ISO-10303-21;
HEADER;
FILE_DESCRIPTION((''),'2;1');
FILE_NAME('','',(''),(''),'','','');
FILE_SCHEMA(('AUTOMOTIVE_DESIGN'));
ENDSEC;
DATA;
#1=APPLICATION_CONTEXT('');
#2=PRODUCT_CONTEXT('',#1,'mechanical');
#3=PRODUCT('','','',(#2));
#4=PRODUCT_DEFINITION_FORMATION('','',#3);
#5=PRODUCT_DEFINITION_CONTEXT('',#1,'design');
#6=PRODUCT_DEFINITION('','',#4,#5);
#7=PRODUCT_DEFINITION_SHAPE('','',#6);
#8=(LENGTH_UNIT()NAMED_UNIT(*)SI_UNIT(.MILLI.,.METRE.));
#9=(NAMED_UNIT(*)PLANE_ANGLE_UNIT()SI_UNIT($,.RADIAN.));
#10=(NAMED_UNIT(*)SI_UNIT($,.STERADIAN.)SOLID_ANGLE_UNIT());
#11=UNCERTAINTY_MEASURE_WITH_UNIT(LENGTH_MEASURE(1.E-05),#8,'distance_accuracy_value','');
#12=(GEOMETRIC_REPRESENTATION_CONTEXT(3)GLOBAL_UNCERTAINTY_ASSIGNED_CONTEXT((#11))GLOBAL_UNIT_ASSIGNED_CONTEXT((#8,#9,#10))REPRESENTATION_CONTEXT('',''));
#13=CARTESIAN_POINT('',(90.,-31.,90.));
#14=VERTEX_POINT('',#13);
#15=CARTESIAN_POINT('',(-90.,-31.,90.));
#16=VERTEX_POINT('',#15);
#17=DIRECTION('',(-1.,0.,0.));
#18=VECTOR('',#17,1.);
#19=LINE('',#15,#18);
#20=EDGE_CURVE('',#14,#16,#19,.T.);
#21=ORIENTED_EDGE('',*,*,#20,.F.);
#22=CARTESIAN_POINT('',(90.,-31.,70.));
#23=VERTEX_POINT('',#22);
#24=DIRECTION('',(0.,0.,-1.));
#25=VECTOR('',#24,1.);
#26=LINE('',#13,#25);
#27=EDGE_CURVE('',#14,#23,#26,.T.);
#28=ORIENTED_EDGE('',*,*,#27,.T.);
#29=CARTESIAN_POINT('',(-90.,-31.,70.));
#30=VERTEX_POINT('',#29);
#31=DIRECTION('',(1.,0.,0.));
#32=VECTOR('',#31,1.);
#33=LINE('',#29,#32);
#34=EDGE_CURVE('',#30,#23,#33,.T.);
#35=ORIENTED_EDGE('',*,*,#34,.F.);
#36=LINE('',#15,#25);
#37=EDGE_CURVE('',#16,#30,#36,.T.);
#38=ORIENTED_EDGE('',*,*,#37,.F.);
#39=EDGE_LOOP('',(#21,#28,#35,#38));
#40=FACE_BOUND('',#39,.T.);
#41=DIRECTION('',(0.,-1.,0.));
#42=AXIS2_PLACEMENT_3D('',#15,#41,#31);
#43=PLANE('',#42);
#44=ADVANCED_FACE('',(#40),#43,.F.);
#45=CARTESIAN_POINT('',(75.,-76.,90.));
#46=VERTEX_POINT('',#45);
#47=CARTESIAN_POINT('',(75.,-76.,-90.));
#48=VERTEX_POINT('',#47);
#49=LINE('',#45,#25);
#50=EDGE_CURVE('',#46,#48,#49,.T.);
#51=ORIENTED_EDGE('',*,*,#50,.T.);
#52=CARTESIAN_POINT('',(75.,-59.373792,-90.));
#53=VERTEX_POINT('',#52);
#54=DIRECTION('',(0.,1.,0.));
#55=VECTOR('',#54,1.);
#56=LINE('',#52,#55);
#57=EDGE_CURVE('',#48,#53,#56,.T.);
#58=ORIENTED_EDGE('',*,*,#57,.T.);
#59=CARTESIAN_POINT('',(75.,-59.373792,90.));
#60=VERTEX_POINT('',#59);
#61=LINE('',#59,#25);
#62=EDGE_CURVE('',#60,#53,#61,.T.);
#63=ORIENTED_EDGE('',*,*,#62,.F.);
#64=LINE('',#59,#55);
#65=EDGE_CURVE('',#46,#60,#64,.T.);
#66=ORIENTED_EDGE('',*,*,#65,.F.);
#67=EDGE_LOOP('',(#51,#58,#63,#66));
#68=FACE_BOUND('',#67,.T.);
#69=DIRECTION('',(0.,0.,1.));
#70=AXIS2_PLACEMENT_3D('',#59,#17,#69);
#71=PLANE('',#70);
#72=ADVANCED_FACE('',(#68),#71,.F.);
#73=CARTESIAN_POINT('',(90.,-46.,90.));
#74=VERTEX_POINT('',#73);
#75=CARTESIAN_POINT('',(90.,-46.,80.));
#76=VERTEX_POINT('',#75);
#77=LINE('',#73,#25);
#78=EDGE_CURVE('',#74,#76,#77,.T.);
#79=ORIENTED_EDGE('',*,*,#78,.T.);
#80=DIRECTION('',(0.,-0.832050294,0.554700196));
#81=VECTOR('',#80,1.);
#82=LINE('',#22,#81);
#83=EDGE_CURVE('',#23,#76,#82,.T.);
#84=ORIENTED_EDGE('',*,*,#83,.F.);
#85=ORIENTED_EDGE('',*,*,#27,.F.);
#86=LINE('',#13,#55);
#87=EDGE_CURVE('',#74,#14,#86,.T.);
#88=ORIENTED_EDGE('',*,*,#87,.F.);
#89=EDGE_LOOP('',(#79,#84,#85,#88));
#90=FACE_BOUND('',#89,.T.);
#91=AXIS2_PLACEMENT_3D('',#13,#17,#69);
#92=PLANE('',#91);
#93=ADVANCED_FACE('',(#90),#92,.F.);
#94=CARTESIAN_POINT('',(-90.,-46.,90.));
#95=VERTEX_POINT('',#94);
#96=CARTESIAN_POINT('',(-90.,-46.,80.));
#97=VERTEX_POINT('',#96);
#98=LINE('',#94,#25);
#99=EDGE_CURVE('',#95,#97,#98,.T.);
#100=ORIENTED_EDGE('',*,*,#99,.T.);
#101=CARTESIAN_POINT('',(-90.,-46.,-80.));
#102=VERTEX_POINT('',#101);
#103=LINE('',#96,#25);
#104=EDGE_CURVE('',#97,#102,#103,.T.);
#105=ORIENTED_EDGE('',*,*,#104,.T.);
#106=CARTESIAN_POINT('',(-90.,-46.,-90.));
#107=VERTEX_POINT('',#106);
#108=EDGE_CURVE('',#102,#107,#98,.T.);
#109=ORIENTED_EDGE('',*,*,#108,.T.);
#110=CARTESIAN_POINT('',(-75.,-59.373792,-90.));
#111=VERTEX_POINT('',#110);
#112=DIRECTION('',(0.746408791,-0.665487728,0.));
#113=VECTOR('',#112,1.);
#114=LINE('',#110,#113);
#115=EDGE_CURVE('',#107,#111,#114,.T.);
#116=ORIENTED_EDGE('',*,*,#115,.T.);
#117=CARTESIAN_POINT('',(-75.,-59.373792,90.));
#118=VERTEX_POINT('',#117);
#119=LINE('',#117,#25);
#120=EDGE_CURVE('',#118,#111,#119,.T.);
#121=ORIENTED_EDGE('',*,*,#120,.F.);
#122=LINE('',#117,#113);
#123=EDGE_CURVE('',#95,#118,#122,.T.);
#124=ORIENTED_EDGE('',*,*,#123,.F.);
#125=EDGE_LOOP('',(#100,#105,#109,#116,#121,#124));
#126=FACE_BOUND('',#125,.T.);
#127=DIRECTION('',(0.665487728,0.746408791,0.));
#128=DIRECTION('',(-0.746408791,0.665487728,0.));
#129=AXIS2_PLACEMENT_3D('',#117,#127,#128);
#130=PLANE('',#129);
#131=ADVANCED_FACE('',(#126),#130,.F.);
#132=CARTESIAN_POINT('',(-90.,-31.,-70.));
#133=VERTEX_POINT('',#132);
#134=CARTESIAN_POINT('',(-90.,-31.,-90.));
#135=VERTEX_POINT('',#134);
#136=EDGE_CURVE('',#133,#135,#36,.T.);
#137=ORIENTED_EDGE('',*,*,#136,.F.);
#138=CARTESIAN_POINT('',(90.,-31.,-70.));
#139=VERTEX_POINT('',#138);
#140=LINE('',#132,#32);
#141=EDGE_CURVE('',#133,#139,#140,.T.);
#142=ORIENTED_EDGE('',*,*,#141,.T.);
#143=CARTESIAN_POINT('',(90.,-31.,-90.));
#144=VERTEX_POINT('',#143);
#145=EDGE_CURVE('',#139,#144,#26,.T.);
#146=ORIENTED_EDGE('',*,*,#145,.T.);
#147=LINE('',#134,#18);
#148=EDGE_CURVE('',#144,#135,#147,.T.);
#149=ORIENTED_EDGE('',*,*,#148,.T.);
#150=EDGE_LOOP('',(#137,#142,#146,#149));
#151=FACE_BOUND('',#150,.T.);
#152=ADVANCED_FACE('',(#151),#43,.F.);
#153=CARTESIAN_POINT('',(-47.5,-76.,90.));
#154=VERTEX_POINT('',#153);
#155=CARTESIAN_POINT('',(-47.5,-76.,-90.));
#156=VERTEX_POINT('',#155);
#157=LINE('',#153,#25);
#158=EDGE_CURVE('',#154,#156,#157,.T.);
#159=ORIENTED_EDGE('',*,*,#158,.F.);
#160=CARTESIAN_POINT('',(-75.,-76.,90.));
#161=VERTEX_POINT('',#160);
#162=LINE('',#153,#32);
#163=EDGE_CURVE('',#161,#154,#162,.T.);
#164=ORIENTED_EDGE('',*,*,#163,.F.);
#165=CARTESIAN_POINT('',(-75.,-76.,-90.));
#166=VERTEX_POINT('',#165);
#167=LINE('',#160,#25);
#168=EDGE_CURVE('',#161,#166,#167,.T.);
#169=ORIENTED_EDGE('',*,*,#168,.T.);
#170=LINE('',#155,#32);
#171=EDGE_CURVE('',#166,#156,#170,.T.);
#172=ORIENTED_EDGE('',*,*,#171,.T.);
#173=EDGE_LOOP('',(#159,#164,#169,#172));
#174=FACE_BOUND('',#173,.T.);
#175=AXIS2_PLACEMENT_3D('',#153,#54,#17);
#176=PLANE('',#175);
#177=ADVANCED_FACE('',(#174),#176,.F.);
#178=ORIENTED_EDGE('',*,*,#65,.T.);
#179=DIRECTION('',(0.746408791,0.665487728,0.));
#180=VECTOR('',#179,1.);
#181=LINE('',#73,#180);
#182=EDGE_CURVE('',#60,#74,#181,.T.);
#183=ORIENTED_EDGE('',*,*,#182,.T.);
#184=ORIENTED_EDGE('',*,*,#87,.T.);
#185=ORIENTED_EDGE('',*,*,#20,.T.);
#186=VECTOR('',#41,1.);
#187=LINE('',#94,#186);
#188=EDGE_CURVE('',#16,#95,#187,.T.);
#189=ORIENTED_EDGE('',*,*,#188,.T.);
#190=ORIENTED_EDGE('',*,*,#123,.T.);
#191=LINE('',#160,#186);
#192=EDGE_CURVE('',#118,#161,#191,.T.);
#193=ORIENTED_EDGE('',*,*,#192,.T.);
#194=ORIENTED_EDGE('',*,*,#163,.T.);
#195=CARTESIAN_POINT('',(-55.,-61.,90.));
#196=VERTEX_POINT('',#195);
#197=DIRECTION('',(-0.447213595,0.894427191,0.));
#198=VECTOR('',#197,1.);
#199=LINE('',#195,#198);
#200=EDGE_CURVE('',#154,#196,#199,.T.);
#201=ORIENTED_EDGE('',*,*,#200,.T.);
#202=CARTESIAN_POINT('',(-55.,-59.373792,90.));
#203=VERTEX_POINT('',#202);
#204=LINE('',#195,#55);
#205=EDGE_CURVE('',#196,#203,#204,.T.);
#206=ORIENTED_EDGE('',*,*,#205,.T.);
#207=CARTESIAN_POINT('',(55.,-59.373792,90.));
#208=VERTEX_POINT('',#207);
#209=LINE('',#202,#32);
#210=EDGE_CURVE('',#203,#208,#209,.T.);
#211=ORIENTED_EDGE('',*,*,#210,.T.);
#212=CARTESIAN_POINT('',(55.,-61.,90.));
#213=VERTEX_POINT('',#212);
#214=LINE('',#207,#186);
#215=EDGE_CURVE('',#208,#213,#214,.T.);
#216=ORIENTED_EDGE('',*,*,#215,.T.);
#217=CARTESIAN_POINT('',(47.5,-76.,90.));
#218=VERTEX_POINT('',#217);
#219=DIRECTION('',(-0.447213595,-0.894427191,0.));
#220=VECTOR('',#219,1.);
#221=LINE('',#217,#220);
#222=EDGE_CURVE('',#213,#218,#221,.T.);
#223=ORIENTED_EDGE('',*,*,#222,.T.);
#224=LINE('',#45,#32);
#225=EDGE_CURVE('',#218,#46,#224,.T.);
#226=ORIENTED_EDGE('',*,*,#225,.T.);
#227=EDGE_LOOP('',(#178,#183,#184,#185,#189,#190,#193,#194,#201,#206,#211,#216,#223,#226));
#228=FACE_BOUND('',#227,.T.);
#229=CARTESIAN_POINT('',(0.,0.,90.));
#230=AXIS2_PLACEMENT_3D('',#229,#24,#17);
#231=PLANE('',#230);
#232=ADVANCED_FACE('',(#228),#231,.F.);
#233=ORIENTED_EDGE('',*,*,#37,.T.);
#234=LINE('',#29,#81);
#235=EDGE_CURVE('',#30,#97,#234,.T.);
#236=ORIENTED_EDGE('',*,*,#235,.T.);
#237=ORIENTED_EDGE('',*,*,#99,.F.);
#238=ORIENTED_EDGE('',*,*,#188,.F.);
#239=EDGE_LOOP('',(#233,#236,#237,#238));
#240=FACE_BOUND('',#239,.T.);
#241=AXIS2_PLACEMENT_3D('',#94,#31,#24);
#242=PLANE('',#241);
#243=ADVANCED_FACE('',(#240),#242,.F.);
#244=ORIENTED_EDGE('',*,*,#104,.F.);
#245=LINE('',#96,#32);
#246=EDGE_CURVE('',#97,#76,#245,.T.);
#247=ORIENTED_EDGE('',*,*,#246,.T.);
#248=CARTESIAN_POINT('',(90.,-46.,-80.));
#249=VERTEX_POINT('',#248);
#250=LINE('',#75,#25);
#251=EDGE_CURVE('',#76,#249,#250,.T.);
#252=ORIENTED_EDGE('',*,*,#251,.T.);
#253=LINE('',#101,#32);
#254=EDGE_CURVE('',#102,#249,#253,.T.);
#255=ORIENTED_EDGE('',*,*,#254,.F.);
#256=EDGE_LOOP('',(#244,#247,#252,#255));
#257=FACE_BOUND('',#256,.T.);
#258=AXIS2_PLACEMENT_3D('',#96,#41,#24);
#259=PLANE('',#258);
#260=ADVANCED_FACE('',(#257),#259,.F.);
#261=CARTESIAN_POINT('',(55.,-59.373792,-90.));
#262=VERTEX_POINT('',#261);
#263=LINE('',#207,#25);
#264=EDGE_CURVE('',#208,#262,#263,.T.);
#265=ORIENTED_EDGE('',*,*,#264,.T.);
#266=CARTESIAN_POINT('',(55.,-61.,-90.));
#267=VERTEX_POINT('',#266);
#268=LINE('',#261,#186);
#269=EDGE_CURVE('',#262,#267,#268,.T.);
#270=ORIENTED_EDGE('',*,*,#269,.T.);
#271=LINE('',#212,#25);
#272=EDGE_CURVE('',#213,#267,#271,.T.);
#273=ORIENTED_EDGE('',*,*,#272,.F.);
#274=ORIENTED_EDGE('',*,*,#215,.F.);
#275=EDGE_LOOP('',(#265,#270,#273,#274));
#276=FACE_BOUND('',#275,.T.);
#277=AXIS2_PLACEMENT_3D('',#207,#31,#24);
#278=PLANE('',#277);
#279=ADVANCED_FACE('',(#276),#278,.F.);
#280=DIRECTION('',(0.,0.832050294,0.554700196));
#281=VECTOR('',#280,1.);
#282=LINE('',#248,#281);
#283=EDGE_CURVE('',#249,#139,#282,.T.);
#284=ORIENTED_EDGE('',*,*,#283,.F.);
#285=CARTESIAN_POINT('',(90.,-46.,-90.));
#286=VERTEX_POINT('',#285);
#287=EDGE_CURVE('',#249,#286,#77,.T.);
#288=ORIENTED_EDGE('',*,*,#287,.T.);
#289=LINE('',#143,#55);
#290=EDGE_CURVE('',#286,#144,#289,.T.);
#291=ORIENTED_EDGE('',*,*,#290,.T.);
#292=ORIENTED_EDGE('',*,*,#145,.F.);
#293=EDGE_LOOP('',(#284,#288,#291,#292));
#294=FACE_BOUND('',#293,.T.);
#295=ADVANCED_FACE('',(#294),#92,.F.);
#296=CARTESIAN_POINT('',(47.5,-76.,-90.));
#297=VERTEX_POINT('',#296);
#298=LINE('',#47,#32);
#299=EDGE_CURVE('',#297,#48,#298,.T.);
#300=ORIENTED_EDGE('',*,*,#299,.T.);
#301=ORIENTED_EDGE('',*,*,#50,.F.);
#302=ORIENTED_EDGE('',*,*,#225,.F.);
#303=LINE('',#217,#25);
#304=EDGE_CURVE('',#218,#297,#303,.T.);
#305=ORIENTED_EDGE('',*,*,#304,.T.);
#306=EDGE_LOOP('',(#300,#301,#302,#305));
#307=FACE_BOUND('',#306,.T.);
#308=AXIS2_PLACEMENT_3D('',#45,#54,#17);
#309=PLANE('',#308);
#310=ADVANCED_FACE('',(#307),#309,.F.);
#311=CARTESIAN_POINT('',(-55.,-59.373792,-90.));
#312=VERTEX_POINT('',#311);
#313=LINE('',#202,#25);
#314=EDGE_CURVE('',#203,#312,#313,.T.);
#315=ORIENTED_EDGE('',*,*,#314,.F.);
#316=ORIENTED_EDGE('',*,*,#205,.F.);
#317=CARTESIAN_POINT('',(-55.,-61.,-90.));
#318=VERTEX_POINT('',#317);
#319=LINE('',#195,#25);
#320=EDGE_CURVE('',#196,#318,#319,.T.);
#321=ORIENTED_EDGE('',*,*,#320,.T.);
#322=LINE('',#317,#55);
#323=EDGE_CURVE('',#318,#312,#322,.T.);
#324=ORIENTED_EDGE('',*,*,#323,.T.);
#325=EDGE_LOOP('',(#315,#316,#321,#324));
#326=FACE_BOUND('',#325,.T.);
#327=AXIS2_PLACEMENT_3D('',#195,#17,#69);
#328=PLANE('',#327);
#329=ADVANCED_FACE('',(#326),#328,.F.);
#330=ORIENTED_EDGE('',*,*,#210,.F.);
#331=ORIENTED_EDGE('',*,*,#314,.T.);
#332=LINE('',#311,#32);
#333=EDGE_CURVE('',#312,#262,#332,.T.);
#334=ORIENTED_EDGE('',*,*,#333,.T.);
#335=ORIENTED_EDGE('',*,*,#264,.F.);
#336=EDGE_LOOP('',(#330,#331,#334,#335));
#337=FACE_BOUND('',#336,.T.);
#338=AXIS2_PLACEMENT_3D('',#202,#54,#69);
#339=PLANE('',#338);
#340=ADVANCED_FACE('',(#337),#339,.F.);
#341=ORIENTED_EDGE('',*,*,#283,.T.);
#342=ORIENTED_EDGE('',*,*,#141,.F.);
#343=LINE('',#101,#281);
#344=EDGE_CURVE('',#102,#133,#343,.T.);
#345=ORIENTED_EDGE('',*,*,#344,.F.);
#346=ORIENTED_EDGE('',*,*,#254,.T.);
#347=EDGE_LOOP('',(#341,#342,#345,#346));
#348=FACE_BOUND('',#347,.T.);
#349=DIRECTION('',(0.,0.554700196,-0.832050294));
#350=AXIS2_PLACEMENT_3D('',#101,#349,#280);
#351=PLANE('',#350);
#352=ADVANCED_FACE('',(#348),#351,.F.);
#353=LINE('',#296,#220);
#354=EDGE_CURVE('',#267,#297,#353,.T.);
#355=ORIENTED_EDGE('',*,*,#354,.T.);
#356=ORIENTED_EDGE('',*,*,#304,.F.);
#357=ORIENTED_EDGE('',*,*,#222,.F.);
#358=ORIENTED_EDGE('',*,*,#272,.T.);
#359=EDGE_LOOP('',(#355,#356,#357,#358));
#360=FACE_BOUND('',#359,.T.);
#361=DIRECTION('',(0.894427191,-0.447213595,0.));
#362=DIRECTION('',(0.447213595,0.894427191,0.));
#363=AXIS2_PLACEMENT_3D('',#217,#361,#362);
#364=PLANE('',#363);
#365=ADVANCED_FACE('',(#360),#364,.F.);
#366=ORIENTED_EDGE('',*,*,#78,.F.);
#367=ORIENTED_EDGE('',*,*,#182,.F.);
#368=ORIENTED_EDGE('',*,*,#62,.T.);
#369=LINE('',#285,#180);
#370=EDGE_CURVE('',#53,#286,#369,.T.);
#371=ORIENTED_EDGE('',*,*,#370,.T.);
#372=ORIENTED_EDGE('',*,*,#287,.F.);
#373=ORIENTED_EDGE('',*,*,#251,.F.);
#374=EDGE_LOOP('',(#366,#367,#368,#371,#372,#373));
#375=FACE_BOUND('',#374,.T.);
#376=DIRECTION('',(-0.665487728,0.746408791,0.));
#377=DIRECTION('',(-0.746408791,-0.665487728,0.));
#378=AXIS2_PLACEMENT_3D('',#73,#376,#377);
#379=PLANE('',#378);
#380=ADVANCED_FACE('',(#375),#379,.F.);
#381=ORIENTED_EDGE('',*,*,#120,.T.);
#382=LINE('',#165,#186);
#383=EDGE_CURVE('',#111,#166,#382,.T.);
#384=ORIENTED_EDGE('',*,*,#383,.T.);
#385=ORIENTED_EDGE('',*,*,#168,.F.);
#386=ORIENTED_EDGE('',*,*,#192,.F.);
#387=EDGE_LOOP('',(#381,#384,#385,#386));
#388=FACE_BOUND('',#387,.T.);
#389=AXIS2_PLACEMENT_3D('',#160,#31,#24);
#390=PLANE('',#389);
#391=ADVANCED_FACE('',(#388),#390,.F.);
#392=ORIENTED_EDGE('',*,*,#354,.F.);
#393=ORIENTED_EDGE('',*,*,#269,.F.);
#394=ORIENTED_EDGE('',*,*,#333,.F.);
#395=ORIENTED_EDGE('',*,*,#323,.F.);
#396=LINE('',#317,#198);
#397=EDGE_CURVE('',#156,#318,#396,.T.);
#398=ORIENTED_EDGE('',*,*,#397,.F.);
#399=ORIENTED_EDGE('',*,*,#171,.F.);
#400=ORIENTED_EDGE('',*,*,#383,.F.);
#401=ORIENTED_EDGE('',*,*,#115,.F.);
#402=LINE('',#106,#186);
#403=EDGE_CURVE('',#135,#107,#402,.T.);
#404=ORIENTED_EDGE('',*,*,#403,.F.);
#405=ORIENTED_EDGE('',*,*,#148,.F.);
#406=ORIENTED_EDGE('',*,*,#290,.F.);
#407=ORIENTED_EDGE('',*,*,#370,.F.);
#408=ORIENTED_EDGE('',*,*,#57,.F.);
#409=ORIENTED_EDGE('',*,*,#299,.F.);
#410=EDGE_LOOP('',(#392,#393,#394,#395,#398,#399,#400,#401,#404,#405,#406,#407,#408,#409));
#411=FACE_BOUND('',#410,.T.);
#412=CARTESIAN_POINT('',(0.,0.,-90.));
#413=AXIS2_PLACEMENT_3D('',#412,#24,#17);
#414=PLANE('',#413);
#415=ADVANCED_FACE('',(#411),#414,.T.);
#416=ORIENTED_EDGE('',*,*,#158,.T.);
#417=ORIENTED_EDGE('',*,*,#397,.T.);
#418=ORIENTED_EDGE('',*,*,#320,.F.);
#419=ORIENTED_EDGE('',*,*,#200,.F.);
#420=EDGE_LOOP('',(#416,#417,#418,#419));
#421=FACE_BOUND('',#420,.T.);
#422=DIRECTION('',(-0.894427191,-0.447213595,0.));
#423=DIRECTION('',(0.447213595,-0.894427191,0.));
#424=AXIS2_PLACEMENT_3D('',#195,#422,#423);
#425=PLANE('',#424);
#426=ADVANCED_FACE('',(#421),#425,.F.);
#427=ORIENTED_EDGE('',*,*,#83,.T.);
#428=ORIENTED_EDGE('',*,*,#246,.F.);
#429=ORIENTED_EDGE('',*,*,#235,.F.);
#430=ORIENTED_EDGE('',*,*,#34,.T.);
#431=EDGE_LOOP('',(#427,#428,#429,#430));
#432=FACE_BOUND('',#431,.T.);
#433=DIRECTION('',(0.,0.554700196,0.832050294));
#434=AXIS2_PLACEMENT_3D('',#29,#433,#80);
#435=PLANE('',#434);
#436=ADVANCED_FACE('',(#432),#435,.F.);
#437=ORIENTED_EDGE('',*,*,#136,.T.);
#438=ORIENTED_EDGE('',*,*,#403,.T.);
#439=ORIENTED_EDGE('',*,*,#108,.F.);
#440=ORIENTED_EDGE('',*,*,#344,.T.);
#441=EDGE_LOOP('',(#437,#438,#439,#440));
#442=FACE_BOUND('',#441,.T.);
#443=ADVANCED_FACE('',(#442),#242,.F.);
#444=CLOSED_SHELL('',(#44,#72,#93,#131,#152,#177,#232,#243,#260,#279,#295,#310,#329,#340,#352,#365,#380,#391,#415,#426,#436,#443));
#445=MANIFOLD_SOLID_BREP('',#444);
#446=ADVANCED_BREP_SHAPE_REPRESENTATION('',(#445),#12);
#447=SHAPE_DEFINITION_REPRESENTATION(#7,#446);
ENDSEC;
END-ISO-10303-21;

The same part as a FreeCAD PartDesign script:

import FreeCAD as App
import Part
import Sketcher
from FreeCAD import Vector
Q = App.Units.Quantity


def add_polygon(sketch, points):
    """Adds a closed chain of lines whose ends are joined by coincident constraints."""
    first, n = sketch.GeometryCount, len(points)
    for a, b in zip(points, points[1:] + points[:1]):
        sketch.addGeometry(Part.LineSegment(App.Vector(*a, 0), App.Vector(*b, 0)), False)
    for i in range(n):
        sketch.addConstraint(Sketcher.Constraint("Coincident", first + i, 2, first + (i + 1) % n, 1))

doc = App.newDocument("Part")
body = doc.addObject("PartDesign::Body", "Body")

sketch1 = body.newObject("Sketcher::SketchObject", "Sketch")
sketch1.AttachmentSupport = (doc.getObject("XY_Plane"), [""])
sketch1.MapMode = "FlatFace"
add_polygon(sketch1, [(-47.5, -76), (-55, -61), (-55, -59.373792), (55, -59.373792), (55, -61), (47.5, -76), (75, -76), (75, -59.373792), (90, -46), (90, -31), (-90, -31), (-90, -46), (-75, -59.373792), (-75, -76)])
sketch1.addConstraint(Sketcher.Constraint("Vertical", 1))
sketch1.addConstraint(Sketcher.Constraint("Horizontal", 2))
sketch1.addConstraint(Sketcher.Constraint("Vertical", 3))
sketch1.addConstraint(Sketcher.Constraint("Horizontal", 5))
sketch1.addConstraint(Sketcher.Constraint("Vertical", 6))
sketch1.addConstraint(Sketcher.Constraint("Vertical", 8))
sketch1.addConstraint(Sketcher.Constraint("Horizontal", 9))
sketch1.addConstraint(Sketcher.Constraint("Vertical", 10))
sketch1.addConstraint(Sketcher.Constraint("Vertical", 12))
sketch1.addConstraint(Sketcher.Constraint("Horizontal", 13))
sketch1.addConstraint(Sketcher.Constraint("Symmetric", 0, 2, 3, 2, -2))
sketch1.addConstraint(Sketcher.Constraint("Symmetric", 7, 2, 10, 2, -2))
sketch1.addConstraint(Sketcher.Constraint("Symmetric", 6, 2, 11, 2, -2))
sketch1.addConstraint(Sketcher.Constraint("Symmetric", 4, 2, 13, 2, -2))
sketch1.addConstraint(Sketcher.Constraint("Horizontal", 2, 2, 6, 2))
sketch1.addConstraint(Sketcher.Constraint("DistanceX", 2, 1, 2, 2, Q("110 mm")))
sketch1.addConstraint(Sketcher.Constraint("DistanceX", 9, 2, 9, 1, Q("180 mm")))
sketch1.addConstraint(Sketcher.Constraint("DistanceY", 8, 1, 8, 2, Q("15 mm")))
sketch1.addConstraint(Sketcher.Constraint("DistanceX", 5, 1, 5, 2, Q("27.5 mm")))
sketch1.addConstraint(Sketcher.Constraint("DistanceY", 0, 2, -1, 1, Q("61 mm")))
sketch1.addConstraint(Sketcher.Constraint("DistanceY", 4, 2, -1, 1, Q("76 mm")))
sketch1.addConstraint(Sketcher.Constraint("DistanceX", -1, 1, 5, 2, Q("75 mm")))
sketch1.addConstraint(Sketcher.Constraint("DistanceY", 7, 2, -1, 1, Q("46 mm")))
sketch1.addConstraint(Sketcher.Constraint("DistanceY", 1, 1, 1, 2, Q("1.626208 mm")))
pad1 = body.newObject("PartDesign::Pad", "Pad")
pad1.Profile = sketch1
pad1.Length = 180
pad1.Midplane = True

sketch2 = body.newObject("Sketcher::SketchObject", "Sketch001")
sketch2.AttachmentSupport = (doc.getObject("YZ_Plane"), [""])
sketch2.MapMode = "FlatFace"
sketch2.AttachmentOffset = App.Placement(Vector(0, 0, 90), App.Rotation())
add_polygon(sketch2, [(-31, 70), (-46, 80), (-46, -80), (-31, -70)])
sketch2.addConstraint(Sketcher.Constraint("Vertical", 1))
sketch2.addConstraint(Sketcher.Constraint("Vertical", 3))
sketch2.addConstraint(Sketcher.Constraint("Equal", 0, 2))
sketch2.addConstraint(Sketcher.Constraint("DistanceY", 1, 2, 1, 1, Q("160 mm")))
sketch2.addConstraint(Sketcher.Constraint("DistanceY", 3, 1, 3, 2, Q("140 mm")))
sketch2.addConstraint(Sketcher.Constraint("DistanceX", 0, 2, -1, 1, Q("46 mm")))
sketch2.addConstraint(Sketcher.Constraint("DistanceY", -1, 1, 0, 2, Q("80 mm")))
sketch2.addConstraint(Sketcher.Constraint("DistanceX", 2, 2, -1, 1, Q("31 mm")))
pocket1 = body.newObject("PartDesign::Pocket", "Pocket")
pocket1.Profile = sketch2
pocket1.Length = 180

doc.recompute()
